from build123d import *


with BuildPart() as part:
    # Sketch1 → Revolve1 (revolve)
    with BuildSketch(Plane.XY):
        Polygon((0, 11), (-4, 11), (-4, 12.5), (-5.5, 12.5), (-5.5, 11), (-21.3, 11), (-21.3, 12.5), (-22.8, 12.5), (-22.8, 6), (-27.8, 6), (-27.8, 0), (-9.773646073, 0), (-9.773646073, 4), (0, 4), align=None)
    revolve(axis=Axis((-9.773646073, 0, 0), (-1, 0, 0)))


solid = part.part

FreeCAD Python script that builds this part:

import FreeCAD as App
import Part
import Sketcher
from FreeCAD import Vector
Q = App.Units.Quantity

doc = App.newDocument("Part")
body = doc.addObject("PartDesign::Body", "Body")

sketch1 = doc.addObject("Sketcher::SketchObject", "Sketch")
body.addObject(sketch1)
sketch1.AttachmentSupport = (doc.XY_Plane, [""])
sketch1.MapMode = "FlatFace"
sketch1.addGeometry(Part.LineSegment(Vector(0, 11, 0), Vector(-4, 11, 0)), False)
sketch1.addGeometry(Part.LineSegment(Vector(-4, 11, 0), Vector(-4, 12.5, 0)), False)
sketch1.addGeometry(Part.LineSegment(Vector(-4, 12.5, 0), Vector(-5.5, 12.5, 0)), False)
sketch1.addGeometry(Part.LineSegment(Vector(-5.5, 12.5, 0), Vector(-5.5, 11, 0)), False)
sketch1.addGeometry(Part.LineSegment(Vector(-5.5, 11, 0), Vector(-21.3, 11, 0)), False)
sketch1.addGeometry(Part.LineSegment(Vector(-21.3, 11, 0), Vector(-21.3, 12.5, 0)), False)
sketch1.addGeometry(Part.LineSegment(Vector(-21.3, 12.5, 0), Vector(-22.8, 12.5, 0)), False)
sketch1.addGeometry(Part.LineSegment(Vector(-22.8, 12.5, 0), Vector(-22.8, 6, 0)), False)
sketch1.addGeometry(Part.LineSegment(Vector(-22.8, 6, 0), Vector(-27.8, 6, 0)), False)
sketch1.addGeometry(Part.LineSegment(Vector(-27.8, 6, 0), Vector(-27.8, 0, 0)), False)
sketch1.addGeometry(Part.LineSegment(Vector(-27.8, 0, 0), Vector(-9.8, 0, 0)), False)
sketch1.addGeometry(Part.LineSegment(Vector(-9.8, 0, 0), Vector(-9.8, 4, 0)), False)
sketch1.addGeometry(Part.LineSegment(Vector(-9.8, 4, 0), Vector(0, 4, 0)), False)
sketch1.addGeometry(Part.LineSegment(Vector(0, 4, 0), Vector(0, 11, 0)), False)
sketch1.addConstraint(Sketcher.Constraint("Coincident", 0, 2, 1, 1))
sketch1.addConstraint(Sketcher.Constraint("Coincident", 1, 2, 2, 1))
sketch1.addConstraint(Sketcher.Constraint("Coincident", 2, 2, 3, 1))
sketch1.addConstraint(Sketcher.Constraint("Coincident", 3, 2, 4, 1))
sketch1.addConstraint(Sketcher.Constraint("Coincident", 4, 2, 5, 1))
sketch1.addConstraint(Sketcher.Constraint("Coincident", 5, 2, 6, 1))
sketch1.addConstraint(Sketcher.Constraint("Coincident", 6, 2, 7, 1))
sketch1.addConstraint(Sketcher.Constraint("Coincident", 7, 2, 8, 1))
sketch1.addConstraint(Sketcher.Constraint("Coincident", 8, 2, 9, 1))
sketch1.addConstraint(Sketcher.Constraint("Coincident", 9, 2, 10, 1))
sketch1.addConstraint(Sketcher.Constraint("Coincident", 10, 2, 11, 1))
sketch1.addConstraint(Sketcher.Constraint("Coincident", 11, 2, 12, 1))
sketch1.addConstraint(Sketcher.Constraint("Coincident", 12, 2, 13, 1))
sketch1.addConstraint(Sketcher.Constraint("Coincident", 13, 2, 0, 1))
sketch1.addConstraint(Sketcher.Constraint("Horizontal", 0))
sketch1.addConstraint(Sketcher.Constraint("Vertical", 1))
sketch1.addConstraint(Sketcher.Constraint("Horizontal", 2))
sketch1.addConstraint(Sketcher.Constraint("Vertical", 3))
sketch1.addConstraint(Sketcher.Constraint("Horizontal", 4))
sketch1.addConstraint(Sketcher.Constraint("Vertical", 5))
sketch1.addConstraint(Sketcher.Constraint("Horizontal", 6))
sketch1.addConstraint(Sketcher.Constraint("Vertical", 7))
sketch1.addConstraint(Sketcher.Constraint("Horizontal", 8))
sketch1.addConstraint(Sketcher.Constraint("Vertical", 9))
sketch1.addConstraint(Sketcher.Constraint("Horizontal", 10))
sketch1.addConstraint(Sketcher.Constraint("Vertical", 11))
sketch1.addConstraint(Sketcher.Constraint("Horizontal", 12))
sketch1.addConstraint(Sketcher.Constraint("Vertical", 13))
sketch1.addConstraint(Sketcher.Constraint("PointOnObject", 9, 2, -1))
sketch1.addConstraint(Sketcher.Constraint("PointOnObject", 12, 2, -2))
sketch1.addConstraint(Sketcher.Constraint("Horizontal", 0, 2, 3, 2))
sketch1.addConstraint(Sketcher.Constraint("Horizontal", 2, 2, 5, 2))
sketch1.addConstraint(Sketcher.Constraint("Equal", 2, 6))
sketch1.addConstraint(Sketcher.Constraint("Equal", 6, 1))
sketch1.addConstraint(Sketcher.Constraint("Equal", 0, 11))
sketch1.addConstraint(Sketcher.Constraint("DistanceX", 0, 2, 0, 1, Q("4 mm")))
sketch1.addConstraint(Sketcher.Constraint("DistanceX", 8, 2, 8, 1, Q("5 mm")))
sketch1.addConstraint(Sketcher.Constraint("DistanceY", 9, 2, 9, 1, Q("6 mm")))
sketch1.addConstraint(Sketcher.Constraint("DistanceY", 13, 1, 13, 2, Q("7 mm")))
sketch1.addConstraint(Sketcher.Constraint("DistanceX", 2, 2, 2, 1, Q("1.5 mm")))
sketch1.addConstraint(Sketcher.Constraint("DistanceX", 4, 2, 4, 1, Q("15.8 mm")))
sketch1.addConstraint(Sketcher.Constraint("DistanceX", 10, 1, 10, 2, Q("18.026354 mm")))
revolution = doc.addObject("PartDesign::Revolution", "Revolution")
body.addObject(revolution)
revolution.Profile = sketch1
revolution.ReferenceAxis = (sketch1, ["H_Axis"])
revolution.Angle = 360

doc.recompute()
